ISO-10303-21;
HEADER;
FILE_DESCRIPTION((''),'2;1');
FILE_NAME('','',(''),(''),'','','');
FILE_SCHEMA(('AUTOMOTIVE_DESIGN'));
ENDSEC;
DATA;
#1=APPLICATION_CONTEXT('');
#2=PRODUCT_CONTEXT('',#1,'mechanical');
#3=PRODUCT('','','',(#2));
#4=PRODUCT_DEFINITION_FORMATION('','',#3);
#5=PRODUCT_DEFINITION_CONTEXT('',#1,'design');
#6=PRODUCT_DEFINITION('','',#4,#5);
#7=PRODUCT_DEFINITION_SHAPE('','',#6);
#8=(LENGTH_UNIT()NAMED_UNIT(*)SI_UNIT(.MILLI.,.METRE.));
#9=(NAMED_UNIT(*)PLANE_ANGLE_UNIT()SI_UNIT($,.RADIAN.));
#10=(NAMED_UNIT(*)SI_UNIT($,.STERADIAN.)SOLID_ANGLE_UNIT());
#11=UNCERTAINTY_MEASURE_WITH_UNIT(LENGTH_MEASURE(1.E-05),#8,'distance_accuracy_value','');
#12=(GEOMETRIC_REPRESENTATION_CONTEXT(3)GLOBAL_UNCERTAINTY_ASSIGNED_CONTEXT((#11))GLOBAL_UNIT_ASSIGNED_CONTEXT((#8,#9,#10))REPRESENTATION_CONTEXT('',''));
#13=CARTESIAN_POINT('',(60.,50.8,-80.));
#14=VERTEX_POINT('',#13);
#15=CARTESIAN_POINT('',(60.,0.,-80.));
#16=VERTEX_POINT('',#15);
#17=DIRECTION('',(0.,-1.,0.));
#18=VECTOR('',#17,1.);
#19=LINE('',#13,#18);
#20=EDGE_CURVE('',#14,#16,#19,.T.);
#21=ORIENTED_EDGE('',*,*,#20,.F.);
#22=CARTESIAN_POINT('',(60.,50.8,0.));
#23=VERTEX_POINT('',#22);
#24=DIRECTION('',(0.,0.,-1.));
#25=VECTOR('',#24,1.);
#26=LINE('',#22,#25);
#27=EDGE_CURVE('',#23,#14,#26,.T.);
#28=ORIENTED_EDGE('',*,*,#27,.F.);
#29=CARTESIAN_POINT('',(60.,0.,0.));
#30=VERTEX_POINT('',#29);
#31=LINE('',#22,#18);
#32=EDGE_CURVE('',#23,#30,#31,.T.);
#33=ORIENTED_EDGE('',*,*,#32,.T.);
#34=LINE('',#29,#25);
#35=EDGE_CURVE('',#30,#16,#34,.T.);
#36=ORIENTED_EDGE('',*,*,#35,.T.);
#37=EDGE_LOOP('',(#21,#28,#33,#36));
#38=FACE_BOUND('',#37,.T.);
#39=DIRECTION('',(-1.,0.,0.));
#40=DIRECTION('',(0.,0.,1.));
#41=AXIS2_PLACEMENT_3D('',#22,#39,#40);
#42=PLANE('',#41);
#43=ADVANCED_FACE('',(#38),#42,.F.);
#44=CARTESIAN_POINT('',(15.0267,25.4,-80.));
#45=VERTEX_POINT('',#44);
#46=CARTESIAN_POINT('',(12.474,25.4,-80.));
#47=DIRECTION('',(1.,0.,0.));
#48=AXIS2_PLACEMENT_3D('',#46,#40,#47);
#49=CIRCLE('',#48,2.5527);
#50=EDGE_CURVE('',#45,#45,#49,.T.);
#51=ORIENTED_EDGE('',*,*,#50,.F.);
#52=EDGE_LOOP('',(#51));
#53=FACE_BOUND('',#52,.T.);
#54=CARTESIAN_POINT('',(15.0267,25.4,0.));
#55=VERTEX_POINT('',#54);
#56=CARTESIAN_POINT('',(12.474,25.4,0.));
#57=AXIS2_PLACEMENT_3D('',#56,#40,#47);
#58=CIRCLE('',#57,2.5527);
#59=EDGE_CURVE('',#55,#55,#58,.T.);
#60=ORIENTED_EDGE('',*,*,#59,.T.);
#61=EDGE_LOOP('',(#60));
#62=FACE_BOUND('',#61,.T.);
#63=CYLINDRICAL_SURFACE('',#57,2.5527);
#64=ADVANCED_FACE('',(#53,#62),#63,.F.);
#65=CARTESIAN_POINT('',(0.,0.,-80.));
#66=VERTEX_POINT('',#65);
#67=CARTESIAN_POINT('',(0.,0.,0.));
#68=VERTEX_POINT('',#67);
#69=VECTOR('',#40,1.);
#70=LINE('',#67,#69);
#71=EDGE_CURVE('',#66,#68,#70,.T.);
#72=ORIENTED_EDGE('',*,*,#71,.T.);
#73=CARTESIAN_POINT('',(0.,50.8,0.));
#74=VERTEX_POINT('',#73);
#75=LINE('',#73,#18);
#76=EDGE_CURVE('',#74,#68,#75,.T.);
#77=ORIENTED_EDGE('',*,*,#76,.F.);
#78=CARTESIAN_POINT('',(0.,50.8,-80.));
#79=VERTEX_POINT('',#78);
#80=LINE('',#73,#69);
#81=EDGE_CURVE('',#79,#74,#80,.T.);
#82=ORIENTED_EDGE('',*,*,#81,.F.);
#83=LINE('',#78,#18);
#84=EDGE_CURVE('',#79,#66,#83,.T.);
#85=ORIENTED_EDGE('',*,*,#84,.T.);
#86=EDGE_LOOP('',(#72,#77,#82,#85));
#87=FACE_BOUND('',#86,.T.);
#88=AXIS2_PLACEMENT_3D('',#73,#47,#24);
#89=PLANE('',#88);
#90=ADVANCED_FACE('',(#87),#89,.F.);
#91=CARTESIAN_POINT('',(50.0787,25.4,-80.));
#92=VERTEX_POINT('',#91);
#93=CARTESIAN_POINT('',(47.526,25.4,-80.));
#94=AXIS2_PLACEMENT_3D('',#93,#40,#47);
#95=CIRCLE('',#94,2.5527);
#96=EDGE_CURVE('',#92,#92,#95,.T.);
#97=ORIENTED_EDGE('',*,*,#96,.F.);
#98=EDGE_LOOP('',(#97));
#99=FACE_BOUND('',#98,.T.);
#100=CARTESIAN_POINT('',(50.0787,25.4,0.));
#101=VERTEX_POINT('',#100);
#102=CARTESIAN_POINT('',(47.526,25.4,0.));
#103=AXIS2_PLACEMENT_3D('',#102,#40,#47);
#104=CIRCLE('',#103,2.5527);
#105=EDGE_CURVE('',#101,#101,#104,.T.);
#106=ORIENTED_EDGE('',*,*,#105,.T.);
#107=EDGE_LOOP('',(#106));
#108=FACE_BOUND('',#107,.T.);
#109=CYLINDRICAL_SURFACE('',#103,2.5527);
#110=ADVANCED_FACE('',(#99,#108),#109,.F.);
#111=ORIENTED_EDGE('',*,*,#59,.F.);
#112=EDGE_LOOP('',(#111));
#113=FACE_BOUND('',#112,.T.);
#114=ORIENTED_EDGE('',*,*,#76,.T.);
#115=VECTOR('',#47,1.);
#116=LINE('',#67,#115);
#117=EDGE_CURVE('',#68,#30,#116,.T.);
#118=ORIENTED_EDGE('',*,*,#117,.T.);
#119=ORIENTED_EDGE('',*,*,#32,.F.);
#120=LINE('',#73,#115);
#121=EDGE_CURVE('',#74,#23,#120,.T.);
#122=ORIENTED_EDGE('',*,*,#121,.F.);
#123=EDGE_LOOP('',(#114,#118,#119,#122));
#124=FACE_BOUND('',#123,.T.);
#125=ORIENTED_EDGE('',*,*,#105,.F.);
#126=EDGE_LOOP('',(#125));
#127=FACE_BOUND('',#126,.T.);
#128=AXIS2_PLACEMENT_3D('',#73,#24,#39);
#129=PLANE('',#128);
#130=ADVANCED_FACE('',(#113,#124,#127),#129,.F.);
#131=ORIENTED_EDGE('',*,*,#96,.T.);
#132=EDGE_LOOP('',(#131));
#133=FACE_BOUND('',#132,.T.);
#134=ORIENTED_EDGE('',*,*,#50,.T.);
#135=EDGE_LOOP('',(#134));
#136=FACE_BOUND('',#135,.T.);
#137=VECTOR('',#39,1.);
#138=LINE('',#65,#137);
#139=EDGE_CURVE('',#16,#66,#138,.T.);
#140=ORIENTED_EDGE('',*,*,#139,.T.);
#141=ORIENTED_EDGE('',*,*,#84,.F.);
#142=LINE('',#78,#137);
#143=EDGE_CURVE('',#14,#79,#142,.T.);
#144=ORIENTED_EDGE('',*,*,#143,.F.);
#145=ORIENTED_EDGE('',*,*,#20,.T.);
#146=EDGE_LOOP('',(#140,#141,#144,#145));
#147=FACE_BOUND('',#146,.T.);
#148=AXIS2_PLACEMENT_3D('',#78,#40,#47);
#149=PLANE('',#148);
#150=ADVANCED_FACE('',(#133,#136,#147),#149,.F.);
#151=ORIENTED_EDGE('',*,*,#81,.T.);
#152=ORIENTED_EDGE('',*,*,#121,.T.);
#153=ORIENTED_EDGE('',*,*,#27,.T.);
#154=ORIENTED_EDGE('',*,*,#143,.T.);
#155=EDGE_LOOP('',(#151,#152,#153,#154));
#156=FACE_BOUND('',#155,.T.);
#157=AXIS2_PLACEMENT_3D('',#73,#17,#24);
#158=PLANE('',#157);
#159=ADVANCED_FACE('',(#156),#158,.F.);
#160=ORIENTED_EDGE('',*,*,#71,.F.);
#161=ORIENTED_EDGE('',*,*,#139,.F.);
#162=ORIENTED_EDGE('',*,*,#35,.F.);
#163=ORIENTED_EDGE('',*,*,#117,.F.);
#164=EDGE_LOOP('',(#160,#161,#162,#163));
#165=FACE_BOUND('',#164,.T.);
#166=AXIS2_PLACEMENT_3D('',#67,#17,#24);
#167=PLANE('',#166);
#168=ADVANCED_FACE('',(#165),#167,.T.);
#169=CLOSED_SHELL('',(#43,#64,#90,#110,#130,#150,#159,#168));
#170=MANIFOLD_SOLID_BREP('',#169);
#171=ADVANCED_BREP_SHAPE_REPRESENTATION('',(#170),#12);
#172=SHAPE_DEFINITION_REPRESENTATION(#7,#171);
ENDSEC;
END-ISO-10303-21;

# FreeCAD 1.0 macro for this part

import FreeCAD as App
import Part
import Sketcher

V = App.Vector


def add_polygon(sketch, points):
    """Adds a closed chain of lines whose ends are joined by coincident constraints."""
    first, n = sketch.GeometryCount, len(points)
    for a, b in zip(points, points[1:] + points[:1]):
        sketch.addGeometry(Part.LineSegment(App.Vector(*a, 0), App.Vector(*b, 0)), False)
    for i in range(n):
        sketch.addConstraint(Sketcher.Constraint("Coincident", first + i, 2, first + (i + 1) % n, 1))

doc = App.newDocument("Part")
params = doc.addObject("Spreadsheet::Sheet", "Params")
for row, (alias, value) in enumerate([
    ("sketch1_width", "60 mm"),
    ("sketch1_height", "80 mm"),
    ("pad1_length", "50.8 mm"),
    ("hole_diameter", "5.1054 mm"),
], start=1):
    params.set(f"A{row}", alias)
    params.set(f"B{row}", "=" + value)
    params.setAlias(f"B{row}", alias)

body = doc.addObject("PartDesign::Body", "Body")

sketch1 = body.newObject("Sketcher::SketchObject", "Sketch")
sketch1.AttachmentSupport = (doc.getObject("XZ_Plane"), [""])
sketch1.MapMode = "FlatFace"
add_polygon(sketch1, [(0, -80), (0, 0), (60, 0), (60, -80)])
sketch1.addConstraint([
    Sketcher.Constraint("Vertical", 0),
    Sketcher.Constraint("Horizontal", 1),
    Sketcher.Constraint("Vertical", 2),
    Sketcher.Constraint("Horizontal", 3),
    Sketcher.Constraint("Coincident", 0, 2, -1, 1),
    Sketcher.Constraint("DistanceX", 1, 1, 1, 2, 60.0),
    Sketcher.Constraint("DistanceY", 0, 1, 0, 2, 80.0),
])
sketch1.setExpression("Constraints[9]", "Params.sketch1_width")
sketch1.setExpression("Constraints[10]", "Params.sketch1_height")
pad1 = body.newObject("PartDesign::Pad", "Pad")
pad1.Profile = sketch1
pad1.setExpression("Length", "Params.pad1_length")
pad1.Reversed = True

sketch2 = body.newObject("Sketcher::SketchObject", "Sketch001")
sketch2.AttachmentSupport = (doc.getObject("XY_Plane"), [""])
sketch2.MapMode = "FlatFace"
sketch2.addGeometry([
    Part.Circle(V(12.5, 25.4, 0), V(0, 0, 1), 2.6),
    Part.Circle(V(47.5, 25.4, 0), V(0, 0, 1), 2.6),
], False)
sketch2.addConstraint([
    Sketcher.Constraint("Equal", 0, 1),
    Sketcher.Constraint("Horizontal", 0, 3, 1, 3),
    Sketcher.Constraint("Diameter", 0, 5.1054),
    Sketcher.Constraint("DistanceY", -1, 1, 0, 3, 25.4),
    Sketcher.Constraint("DistanceX", -1, 1, 0, 3, 12.474),
    Sketcher.Constraint("DistanceX", -1, 1, 1, 3, 47.526),
])
doc.recompute()
hole = body.newObject("PartDesign::Hole", "Hole")
hole.Profile = sketch2
hole.ThreadType = "None"
hole.setExpression("Diameter", "Params.hole_diameter")
hole.DepthType = "ThroughAll"

doc.recompute()
